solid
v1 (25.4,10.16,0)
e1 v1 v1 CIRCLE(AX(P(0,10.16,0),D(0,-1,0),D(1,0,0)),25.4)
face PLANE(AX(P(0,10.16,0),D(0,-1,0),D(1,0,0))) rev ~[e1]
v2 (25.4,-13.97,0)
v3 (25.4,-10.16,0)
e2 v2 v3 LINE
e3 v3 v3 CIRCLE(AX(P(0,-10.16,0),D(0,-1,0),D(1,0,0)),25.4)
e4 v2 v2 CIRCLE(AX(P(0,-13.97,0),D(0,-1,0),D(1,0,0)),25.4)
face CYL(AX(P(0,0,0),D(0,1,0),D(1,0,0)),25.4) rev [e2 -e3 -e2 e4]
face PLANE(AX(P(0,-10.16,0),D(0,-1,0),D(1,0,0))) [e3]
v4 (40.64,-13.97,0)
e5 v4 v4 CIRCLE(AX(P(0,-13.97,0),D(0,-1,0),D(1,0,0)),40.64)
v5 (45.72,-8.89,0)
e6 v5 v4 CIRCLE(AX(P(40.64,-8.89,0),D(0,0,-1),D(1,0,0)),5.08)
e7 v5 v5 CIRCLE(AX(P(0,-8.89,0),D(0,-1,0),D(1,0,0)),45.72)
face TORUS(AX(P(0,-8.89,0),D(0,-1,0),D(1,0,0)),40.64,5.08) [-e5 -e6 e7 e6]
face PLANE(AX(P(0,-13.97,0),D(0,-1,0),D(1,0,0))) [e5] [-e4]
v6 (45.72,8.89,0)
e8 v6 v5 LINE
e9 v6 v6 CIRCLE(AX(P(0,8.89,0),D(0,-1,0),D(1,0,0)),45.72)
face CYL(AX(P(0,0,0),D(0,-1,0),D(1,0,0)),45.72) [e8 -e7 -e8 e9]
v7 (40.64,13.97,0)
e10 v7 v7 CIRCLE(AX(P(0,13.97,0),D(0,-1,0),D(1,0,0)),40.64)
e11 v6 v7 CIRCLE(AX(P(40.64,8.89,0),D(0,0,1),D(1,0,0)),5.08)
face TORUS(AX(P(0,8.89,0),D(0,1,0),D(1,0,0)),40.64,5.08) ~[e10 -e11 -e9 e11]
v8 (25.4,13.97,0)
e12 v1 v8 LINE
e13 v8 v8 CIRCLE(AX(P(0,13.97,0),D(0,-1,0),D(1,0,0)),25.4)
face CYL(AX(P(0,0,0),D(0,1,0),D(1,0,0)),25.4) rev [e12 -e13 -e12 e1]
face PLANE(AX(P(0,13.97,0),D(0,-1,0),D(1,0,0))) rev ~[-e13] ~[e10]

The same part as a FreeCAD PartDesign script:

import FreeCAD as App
import Part
import Sketcher
Q = App.Units.Quantity


def edges_at(feature, points):
    """Names of the edges that pass closest to the given points."""
    edges = feature.Shape.Edges
    near = lambda p: min(range(len(edges)), key=lambda i: edges[i].distToShape(Part.Vertex(*p))[0])
    return sorted({f"Edge{near(p) + 1}" for p in points})

doc = App.newDocument("Part")
body = doc.addObject("PartDesign::Body", "Body")

sketch1 = body.newObject("Sketcher::SketchObject", "Sketch")
sketch1.AttachmentSupport = (doc.getObject("XZ_Plane"), [""])
sketch1.MapMode = "FlatFace"
sketch1.addGeometry(Part.Circle(App.Vector(0, 0, 0), App.Vector(0, 0, 1), 25), False)
sketch1.addConstraint(Sketcher.Constraint("Coincident", 0, 3, -1, 1))
sketch1.addConstraint(Sketcher.Constraint("Diameter", 0, Q("2 in")))
pad1 = body.newObject("PartDesign::Pad", "Pad")
pad1.Profile = sketch1
pad1.Length = Q("0.8 in")
pad1.Midplane = True

sketch2 = body.newObject("Sketcher::SketchObject", "Sketch001")
sketch2.AttachmentSupport = (doc.getObject("XZ_Plane"), [""])
sketch2.MapMode = "FlatFace"
sketch2.addGeometry(Part.Circle(App.Vector(0, 0, 0), App.Vector(0, 0, 1), 46), False)
sketch2.addGeometry(Part.Circle(App.Vector(0, 0, 0), App.Vector(0, 0, 1), 25), False)
sketch2.addConstraint(Sketcher.Constraint("Coincident", 0, 3, -1, 1))
sketch2.addConstraint(Sketcher.Constraint("Coincident", 1, 3, -1, 1))
sketch2.addConstraint(Sketcher.Constraint("Diameter", 1, Q("2 in")))
sketch2.addConstraint(Sketcher.Constraint("Diameter", 0, Q("3.6 in")))
pad2 = body.newObject("PartDesign::Pad", "Pad001")
pad2.Profile = sketch2
pad2.Length = Q("1.1 in")
pad2.Midplane = True
doc.recompute()

fillet = body.newObject("PartDesign::Fillet", "Fillet")
fillet.Base = (pad2, edges_at(pad2, [(-45.72, 13.97, 0), (-45.72, -13.97, 0)]))
fillet.Radius = Q("0.2 in")

doc.recompute()
